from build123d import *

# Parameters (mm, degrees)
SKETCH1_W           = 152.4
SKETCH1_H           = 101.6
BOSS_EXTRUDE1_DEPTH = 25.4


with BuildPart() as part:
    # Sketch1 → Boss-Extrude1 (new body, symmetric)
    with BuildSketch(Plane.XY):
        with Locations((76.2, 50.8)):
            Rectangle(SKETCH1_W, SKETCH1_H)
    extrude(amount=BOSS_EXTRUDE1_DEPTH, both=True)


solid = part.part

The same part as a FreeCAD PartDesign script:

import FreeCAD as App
import Part
import Sketcher
Q = App.Units.Quantity

doc = App.newDocument("Part")
body = doc.addObject("PartDesign::Body", "Body")

sketch1 = body.newObject("Sketcher::SketchObject", "Sketch")
sketch1.AttachmentSupport = (doc.getObject("XY_Plane"), [""])
sketch1.MapMode = "FlatFace"
sketch1.addGeometry([
    Part.LineSegment(App.Vector(0, 102, 0), App.Vector(0, 0, 0)),
    Part.LineSegment(App.Vector(0, 0, 0), App.Vector(152, 0, 0)),
    Part.LineSegment(App.Vector(152, 0, 0), App.Vector(152, 102, 0)),
    Part.LineSegment(App.Vector(152, 102, 0), App.Vector(0, 102, 0)),
], False)
sketch1.addConstraint([
    Sketcher.Constraint("Coincident", 0, 2, 1, 1),
    Sketcher.Constraint("Coincident", 1, 2, 2, 1),
    Sketcher.Constraint("Coincident", 2, 2, 3, 1),
    Sketcher.Constraint("Coincident", 3, 2, 0, 1),
    Sketcher.Constraint("Vertical", 0),
    Sketcher.Constraint("Horizontal", 1),
    Sketcher.Constraint("Vertical", 2),
    Sketcher.Constraint("Horizontal", 3),
    Sketcher.Constraint("Coincident", 0, 2, -1, 1),
    Sketcher.Constraint("DistanceX", 1, 1, 1, 2, Q("6 in")),
    Sketcher.Constraint("DistanceY", 0, 2, 0, 1, Q("4 in")),
])
pad1 = body.newObject("PartDesign::Pad", "Pad")
pad1.Profile = sketch1
pad1.Length = Q("2 in")
pad1.Midplane = True

doc.recompute()
